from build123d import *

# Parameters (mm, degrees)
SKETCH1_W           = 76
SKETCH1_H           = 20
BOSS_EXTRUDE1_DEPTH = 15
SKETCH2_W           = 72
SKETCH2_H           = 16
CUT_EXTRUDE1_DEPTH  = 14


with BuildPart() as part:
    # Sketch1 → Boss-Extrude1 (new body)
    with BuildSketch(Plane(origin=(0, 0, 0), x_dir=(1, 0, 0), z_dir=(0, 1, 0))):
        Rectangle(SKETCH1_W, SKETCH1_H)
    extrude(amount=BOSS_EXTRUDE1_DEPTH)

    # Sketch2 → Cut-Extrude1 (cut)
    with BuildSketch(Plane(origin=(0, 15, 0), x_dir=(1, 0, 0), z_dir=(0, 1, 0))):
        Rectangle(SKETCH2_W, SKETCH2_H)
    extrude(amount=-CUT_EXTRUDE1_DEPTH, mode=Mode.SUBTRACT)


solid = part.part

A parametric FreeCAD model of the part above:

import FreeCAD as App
import Part
import Sketcher
from FreeCAD import Vector
Q = App.Units.Quantity

doc = App.newDocument("Part")
body = doc.addObject("PartDesign::Body", "Body")

sketch1 = body.newObject("Sketcher::SketchObject", "Sketch")
sketch1.AttachmentSupport = (doc.getObject("XZ_Plane"), [""])
sketch1.MapMode = "FlatFace"
sketch1.addGeometry(Part.LineSegment(Vector(-38, -10, 0), Vector(-38, 10, 0)), False)
sketch1.addGeometry(Part.LineSegment(Vector(-38, 10, 0), Vector(38, 10, 0)), False)
sketch1.addGeometry(Part.LineSegment(Vector(38, 10, 0), Vector(38, -10, 0)), False)
sketch1.addGeometry(Part.LineSegment(Vector(38, -10, 0), Vector(-38, -10, 0)), False)
sketch1.addConstraint(Sketcher.Constraint("Coincident", 0, 2, 1, 1))
sketch1.addConstraint(Sketcher.Constraint("Coincident", 1, 2, 2, 1))
sketch1.addConstraint(Sketcher.Constraint("Coincident", 2, 2, 3, 1))
sketch1.addConstraint(Sketcher.Constraint("Coincident", 3, 2, 0, 1))
sketch1.addConstraint(Sketcher.Constraint("Vertical", 0))
sketch1.addConstraint(Sketcher.Constraint("Horizontal", 1))
sketch1.addConstraint(Sketcher.Constraint("Vertical", 2))
sketch1.addConstraint(Sketcher.Constraint("Horizontal", 3))
sketch1.addConstraint(Sketcher.Constraint("Symmetric", 0, 2, 2, 2, -1, 1))
sketch1.addConstraint(Sketcher.Constraint("DistanceX", 1, 1, 1, 2, Q("76 mm")))
sketch1.addConstraint(Sketcher.Constraint("DistanceY", 0, 1, 0, 2, Q("20 mm")))
pad1 = body.newObject("PartDesign::Pad", "Pad")
pad1.Profile = sketch1
pad1.Length = 15
pad1.Reversed = True

sketch2 = body.newObject("Sketcher::SketchObject", "Sketch001")
sketch2.AttachmentSupport = (doc.getObject("XZ_Plane"), [""])
sketch2.MapMode = "FlatFace"
sketch2.AttachmentOffset = App.Placement(Vector(0, 0, -15), App.Rotation())
sketch2.addGeometry(Part.LineSegment(Vector(-36, -8, 0), Vector(-36, 8, 0)), False)
sketch2.addGeometry(Part.LineSegment(Vector(-36, 8, 0), Vector(36, 8, 0)), False)
sketch2.addGeometry(Part.LineSegment(Vector(36, 8, 0), Vector(36, -8, 0)), False)
sketch2.addGeometry(Part.LineSegment(Vector(36, -8, 0), Vector(-36, -8, 0)), False)
sketch2.addConstraint(Sketcher.Constraint("Coincident", 0, 2, 1, 1))
sketch2.addConstraint(Sketcher.Constraint("Coincident", 1, 2, 2, 1))
sketch2.addConstraint(Sketcher.Constraint("Coincident", 2, 2, 3, 1))
sketch2.addConstraint(Sketcher.Constraint("Coincident", 3, 2, 0, 1))
sketch2.addConstraint(Sketcher.Constraint("Vertical", 0))
sketch2.addConstraint(Sketcher.Constraint("Horizontal", 1))
sketch2.addConstraint(Sketcher.Constraint("Vertical", 2))
sketch2.addConstraint(Sketcher.Constraint("Horizontal", 3))
sketch2.addConstraint(Sketcher.Constraint("Symmetric", 0, 2, 2, 2, -1, 1))
sketch2.addConstraint(Sketcher.Constraint("DistanceX", 1, 1, 1, 2, Q("72 mm")))
sketch2.addConstraint(Sketcher.Constraint("DistanceY", 0, 1, 0, 2, Q("16 mm")))
pocket1 = body.newObject("PartDesign::Pocket", "Pocket")
pocket1.Profile = sketch2
pocket1.Length = 14
pocket1.Reversed = True

doc.recompute()
